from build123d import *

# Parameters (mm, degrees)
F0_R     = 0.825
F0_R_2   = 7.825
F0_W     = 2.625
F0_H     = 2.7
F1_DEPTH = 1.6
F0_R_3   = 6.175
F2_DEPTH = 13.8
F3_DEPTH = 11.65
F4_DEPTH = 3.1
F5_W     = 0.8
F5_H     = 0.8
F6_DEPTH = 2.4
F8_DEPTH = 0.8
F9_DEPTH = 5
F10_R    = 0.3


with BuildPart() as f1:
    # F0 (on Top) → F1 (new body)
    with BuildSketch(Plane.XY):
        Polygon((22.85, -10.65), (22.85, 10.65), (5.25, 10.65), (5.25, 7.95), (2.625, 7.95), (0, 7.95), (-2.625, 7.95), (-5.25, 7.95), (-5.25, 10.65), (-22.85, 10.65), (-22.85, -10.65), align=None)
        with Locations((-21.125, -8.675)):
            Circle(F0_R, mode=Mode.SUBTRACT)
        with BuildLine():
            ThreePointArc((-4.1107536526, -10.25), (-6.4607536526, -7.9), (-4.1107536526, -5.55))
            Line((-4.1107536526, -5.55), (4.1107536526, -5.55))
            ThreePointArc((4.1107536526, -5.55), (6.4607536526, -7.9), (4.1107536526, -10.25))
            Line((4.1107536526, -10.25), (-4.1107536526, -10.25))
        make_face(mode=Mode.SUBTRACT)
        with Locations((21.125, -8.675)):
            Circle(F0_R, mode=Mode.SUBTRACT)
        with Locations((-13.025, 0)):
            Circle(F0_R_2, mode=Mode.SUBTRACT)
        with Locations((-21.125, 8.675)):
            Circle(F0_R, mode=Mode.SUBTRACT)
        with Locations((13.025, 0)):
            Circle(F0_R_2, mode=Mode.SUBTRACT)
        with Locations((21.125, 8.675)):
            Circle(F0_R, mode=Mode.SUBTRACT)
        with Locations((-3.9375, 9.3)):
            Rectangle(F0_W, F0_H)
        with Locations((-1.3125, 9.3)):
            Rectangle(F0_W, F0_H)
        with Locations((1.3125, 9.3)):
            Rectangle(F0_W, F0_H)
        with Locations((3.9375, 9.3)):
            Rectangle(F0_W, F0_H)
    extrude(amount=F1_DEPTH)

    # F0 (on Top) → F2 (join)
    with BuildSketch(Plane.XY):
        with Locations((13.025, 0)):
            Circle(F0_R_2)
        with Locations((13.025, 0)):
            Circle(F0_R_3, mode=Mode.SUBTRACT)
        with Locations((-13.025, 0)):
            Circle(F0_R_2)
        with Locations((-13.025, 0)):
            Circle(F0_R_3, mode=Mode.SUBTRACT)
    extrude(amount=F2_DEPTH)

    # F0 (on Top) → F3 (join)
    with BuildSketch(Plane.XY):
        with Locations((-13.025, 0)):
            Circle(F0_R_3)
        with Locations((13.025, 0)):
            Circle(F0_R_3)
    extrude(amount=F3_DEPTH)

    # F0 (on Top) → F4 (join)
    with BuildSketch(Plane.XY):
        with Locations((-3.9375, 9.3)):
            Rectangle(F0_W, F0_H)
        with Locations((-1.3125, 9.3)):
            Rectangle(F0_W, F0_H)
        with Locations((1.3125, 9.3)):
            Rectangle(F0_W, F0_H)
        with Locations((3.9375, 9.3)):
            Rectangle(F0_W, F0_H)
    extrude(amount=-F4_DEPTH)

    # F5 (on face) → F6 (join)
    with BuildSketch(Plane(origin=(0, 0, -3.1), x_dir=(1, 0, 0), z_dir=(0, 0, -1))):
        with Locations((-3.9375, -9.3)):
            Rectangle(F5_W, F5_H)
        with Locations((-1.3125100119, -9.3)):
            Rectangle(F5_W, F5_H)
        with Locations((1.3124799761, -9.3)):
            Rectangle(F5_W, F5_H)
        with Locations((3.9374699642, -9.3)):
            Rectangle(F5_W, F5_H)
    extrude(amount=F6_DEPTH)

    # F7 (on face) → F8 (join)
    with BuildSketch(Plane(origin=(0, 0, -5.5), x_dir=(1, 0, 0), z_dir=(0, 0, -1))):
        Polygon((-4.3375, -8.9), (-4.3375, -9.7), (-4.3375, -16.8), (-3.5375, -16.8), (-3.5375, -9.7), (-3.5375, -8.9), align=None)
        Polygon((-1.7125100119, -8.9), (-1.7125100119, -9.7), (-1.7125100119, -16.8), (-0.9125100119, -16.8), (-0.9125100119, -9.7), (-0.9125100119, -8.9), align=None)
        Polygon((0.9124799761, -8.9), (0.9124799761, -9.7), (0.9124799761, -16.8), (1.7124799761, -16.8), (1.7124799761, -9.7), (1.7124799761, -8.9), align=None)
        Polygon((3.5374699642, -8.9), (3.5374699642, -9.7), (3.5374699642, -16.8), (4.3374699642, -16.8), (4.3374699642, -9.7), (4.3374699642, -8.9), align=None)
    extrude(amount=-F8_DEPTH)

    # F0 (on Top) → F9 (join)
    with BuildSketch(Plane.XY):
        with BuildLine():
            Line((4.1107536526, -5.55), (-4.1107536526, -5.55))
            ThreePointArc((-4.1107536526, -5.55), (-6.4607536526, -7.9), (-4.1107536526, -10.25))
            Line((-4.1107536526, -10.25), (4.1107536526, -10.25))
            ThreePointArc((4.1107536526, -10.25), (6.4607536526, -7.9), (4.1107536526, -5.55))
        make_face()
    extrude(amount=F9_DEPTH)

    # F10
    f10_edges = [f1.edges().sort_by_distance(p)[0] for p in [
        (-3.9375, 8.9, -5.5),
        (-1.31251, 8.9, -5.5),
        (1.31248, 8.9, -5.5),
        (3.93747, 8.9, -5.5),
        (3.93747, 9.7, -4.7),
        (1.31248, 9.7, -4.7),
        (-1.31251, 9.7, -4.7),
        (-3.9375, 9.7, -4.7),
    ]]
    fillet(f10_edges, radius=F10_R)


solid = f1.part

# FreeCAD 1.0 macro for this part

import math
import FreeCAD as App
import Part
import Sketcher
Q = App.Units.Quantity


def edges_at(feature, points):
    """Names of the edges that pass closest to the given points."""
    edges = feature.Shape.Edges
    near = lambda p: min(range(len(edges)), key=lambda i: edges[i].distToShape(Part.Vertex(*p))[0])
    return sorted({f"Edge{near(p) + 1}" for p in points})


def add_polygon(sketch, points):
    """Adds a closed chain of lines whose ends are joined by coincident constraints."""
    first, n = sketch.GeometryCount, len(points)
    for a, b in zip(points, points[1:] + points[:1]):
        sketch.addGeometry(Part.LineSegment(App.Vector(*a, 0), App.Vector(*b, 0)), False)
    for i in range(n):
        sketch.addConstraint(Sketcher.Constraint("Coincident", first + i, 2, first + (i + 1) % n, 1))

doc = App.newDocument("Part")
body = doc.addObject("PartDesign::Body", "Body")

# Sketch on XY plane
sketch1 = body.newObject("Sketcher::SketchObject", "Sketch")
sketch1.AttachmentSupport = (doc.getObject("XY_Plane"), [""])
sketch1.MapMode = "FlatFace"
add_polygon(sketch1, [(22.9, -10.7), (22.9, 10.7), (-22.9, 10.7), (-22.9, -10.7)])  # lines 0-3
sketch1.addGeometry(Part.Circle(App.Vector(-21.1, -8.7, 0), App.Vector(0, 0, 1), 0.8), False)  # 4
sketch1.addGeometry(Part.LineSegment(App.Vector(4.1, -10.2, 0), App.Vector(-4.1, -10.2, 0)), False)  # 5
sketch1.addGeometry(Part.ArcOfCircle(Part.Circle(App.Vector(-4.1, -7.9, 0), App.Vector(0, 0, 1), 2.4), math.radians(90), math.radians(270)), False)  # 6
sketch1.addGeometry(Part.LineSegment(App.Vector(-4.1, -5.5, 0), App.Vector(4.1, -5.5, 0)), False)  # 7
sketch1.addGeometry(Part.ArcOfCircle(Part.Circle(App.Vector(4.1, -7.9, 0), App.Vector(0, 0, 1), 2.4), math.radians(-90), math.radians(90)), False)  # 8
sketch1.addGeometry(Part.Circle(App.Vector(21.1, -8.7, 0), App.Vector(0, 0, 1), 0.8), False)  # 9
sketch1.addGeometry(Part.Circle(App.Vector(-13, 0, 0), App.Vector(0, 0, 1), 7.8), False)  # 10
sketch1.addGeometry(Part.Circle(App.Vector(-21.1, 8.7, 0), App.Vector(0, 0, 1), 0.8), False)  # 11
sketch1.addGeometry(Part.Circle(App.Vector(13, 0, 0), App.Vector(0, 0, 1), 7.8), False)  # 12
sketch1.addGeometry(Part.Circle(App.Vector(21.1, 8.7, 0), App.Vector(0, 0, 1), 0.8), False)  # 13
sketch1.addConstraint(Sketcher.Constraint("Tangent", 5, 2, 6, 2))
sketch1.addConstraint(Sketcher.Constraint("Tangent", 6, 1, 7, 1))
sketch1.addConstraint(Sketcher.Constraint("Tangent", 7, 2, 8, 2))
sketch1.addConstraint(Sketcher.Constraint("Tangent", 8, 1, 5, 1))
sketch1.addConstraint(Sketcher.Constraint("Vertical", 0))
sketch1.addConstraint(Sketcher.Constraint("Horizontal", 1))
sketch1.addConstraint(Sketcher.Constraint("Vertical", 2))
sketch1.addConstraint(Sketcher.Constraint("Horizontal", 3))
sketch1.addConstraint(Sketcher.Constraint("Horizontal", 5))
sketch1.addConstraint(Sketcher.Constraint("Horizontal", 7))
sketch1.addConstraint(Sketcher.Constraint("Equal", 4, 9))
sketch1.addConstraint(Sketcher.Constraint("Equal", 9, 11))
sketch1.addConstraint(Sketcher.Constraint("Equal", 10, 12))
sketch1.addConstraint(Sketcher.Constraint("Equal", 11, 13))
sketch1.addConstraint(Sketcher.Constraint("Symmetric", 9, 3, 11, 3, -1, 1))
sketch1.addConstraint(Sketcher.Constraint("Symmetric", 10, 3, 12, 3, -1, 1))
sketch1.addConstraint(Sketcher.Constraint("Symmetric", 4, 3, 13, 3, -1, 1))
sketch1.addConstraint(Sketcher.Constraint("Symmetric", 0, 2, 2, 2, -1, 1))
sketch1.addConstraint(Sketcher.Constraint("Symmetric", 4, 3, 9, 3, -2))
sketch1.addConstraint(Sketcher.Constraint("PointOnObject", 10, 3, -1))
sketch1.addConstraint(Sketcher.Constraint("Diameter", 4, Q("1.65 mm")))
sketch1.addConstraint(Sketcher.Constraint("Diameter", 10, Q("15.65 mm")))
sketch1.addConstraint(Sketcher.Constraint("Radius", 6, Q("2.35 mm")))
sketch1.addConstraint(Sketcher.Constraint("DistanceX", 1, 2, 1, 1, Q("45.7 mm")))
sketch1.addConstraint(Sketcher.Constraint("DistanceY", 0, 1, 0, 2, Q("21.3 mm")))
sketch1.addConstraint(Sketcher.Constraint("DistanceY", 6, 3, -1, 1, Q("7.9 mm")))
sketch1.addConstraint(Sketcher.Constraint("DistanceX", 4, 3, 10, 3, Q("8.1 mm")))
sketch1.addConstraint(Sketcher.Constraint("DistanceX", 4, 3, 9, 3, Q("42.25 mm")))
sketch1.addConstraint(Sketcher.Constraint("DistanceY", 4, 3, 11, 3, Q("17.35 mm")))
sketch1.addConstraint(Sketcher.Constraint("DistanceX", 5, 2, 5, 1, Q("8.221507 mm")))
sketch1.addConstraint(Sketcher.Constraint("DistanceX", 6, 3, -1, 1, Q("4.110754 mm")))
pad1 = body.newObject("PartDesign::Pad", "Pad")
pad1.Profile = sketch1
pad1.Length = 1.6

# Sketch on XY plane
sketch2 = body.newObject("Sketcher::SketchObject", "Sketch001")
sketch2.AttachmentSupport = (doc.getObject("XY_Plane"), [""])
sketch2.MapMode = "FlatFace"
sketch2.addGeometry(Part.Circle(App.Vector(13, 0, 0), App.Vector(0, 0, 1), 8), False)
sketch2.addGeometry(Part.Circle(App.Vector(13, 0, 0), App.Vector(0, 0, 1), 6), False)
sketch2.addGeometry(Part.Circle(App.Vector(-13, 0, 0), App.Vector(0, 0, 1), 8), False)
sketch2.addGeometry(Part.Circle(App.Vector(-13, 0, 0), App.Vector(0, 0, 1), 6), False)
sketch2.addConstraint(Sketcher.Constraint("Coincident", 1, 3, 0, 3))
sketch2.addConstraint(Sketcher.Constraint("Coincident", 3, 3, 2, 3))
sketch2.addConstraint(Sketcher.Constraint("Equal", 0, 2))
sketch2.addConstraint(Sketcher.Constraint("Equal", 1, 3))
sketch2.addConstraint(Sketcher.Constraint("Symmetric", 0, 3, 2, 3, -1, 1))
sketch2.addConstraint(Sketcher.Constraint("PointOnObject", 0, 3, -1))
sketch2.addConstraint(Sketcher.Constraint("Diameter", 0, Q("15.65 mm")))
sketch2.addConstraint(Sketcher.Constraint("Diameter", 1, Q("12.35 mm")))
sketch2.addConstraint(Sketcher.Constraint("DistanceX", 2, 3, 0, 3, Q("26.05 mm")))
pad2 = body.newObject("PartDesign::Pad", "Pad001")
pad2.Profile = sketch2
pad2.Length = 13.8

# Sketch on XY plane
sketch3 = body.newObject("Sketcher::SketchObject", "Sketch002")
sketch3.AttachmentSupport = (doc.getObject("XY_Plane"), [""])
sketch3.MapMode = "FlatFace"
sketch3.addGeometry(Part.Circle(App.Vector(-13, 0, 0), App.Vector(0, 0, 1), 6), False)
sketch3.addGeometry(Part.Circle(App.Vector(13, 0, 0), App.Vector(0, 0, 1), 6), False)
sketch3.addConstraint(Sketcher.Constraint("Equal", 0, 1))
sketch3.addConstraint(Sketcher.Constraint("Symmetric", 0, 3, 1, 3, -1, 1))
sketch3.addConstraint(Sketcher.Constraint("PointOnObject", 0, 3, -1))
sketch3.addConstraint(Sketcher.Constraint("Diameter", 0, Q("12.35 mm")))
sketch3.addConstraint(Sketcher.Constraint("DistanceX", 0, 3, 1, 3, Q("26.05 mm")))
pad3 = body.newObject("PartDesign::Pad", "Pad002")
pad3.Profile = sketch3
pad3.Length = 11.65

# Sketch on XY plane
sketch4 = body.newObject("Sketcher::SketchObject", "Sketch003")
sketch4.AttachmentSupport = (doc.getObject("XY_Plane"), [""])
sketch4.MapMode = "FlatFace"
add_polygon(sketch4, [(-5.2, 10.7), (-5.2, 8), (5.2, 8), (5.2, 10.7)])  # lines 0-3
sketch4.addConstraint(Sketcher.Constraint("Vertical", 0))
sketch4.addConstraint(Sketcher.Constraint("Horizontal", 1))
sketch4.addConstraint(Sketcher.Constraint("Vertical", 2))
sketch4.addConstraint(Sketcher.Constraint("Horizontal", 3))
sketch4.addConstraint(Sketcher.Constraint("DistanceX", 1, 1, 1, 2, Q("10.5 mm")))
sketch4.addConstraint(Sketcher.Constraint("DistanceY", 0, 2, 0, 1, Q("2.7 mm")))
sketch4.addConstraint(Sketcher.Constraint("DistanceX", 0, 2, -1, 1, Q("5.25 mm")))
sketch4.addConstraint(Sketcher.Constraint("DistanceY", -1, 1, 0, 2, Q("7.95 mm")))
pad4 = body.newObject("PartDesign::Pad", "Pad003")
pad4.Profile = sketch4
pad4.Length = 3.1
pad4.Reversed = True

# Sketch on XY plane
sketch5 = body.newObject("Sketcher::SketchObject", "Sketch004")
sketch5.AttachmentSupport = (doc.getObject("XY_Plane"), [""])
sketch5.MapMode = "FlatFace"
sketch5.AttachmentOffset = App.Placement(App.Vector(0, 0, -3.1), App.Rotation())
add_polygon(sketch5, [(-4.3, 8.9), (-4.3, 9.7), (-3.5, 9.7), (-3.5, 8.9)])  # lines 0-3
add_polygon(sketch5, [(-1.7, 8.9), (-1.7, 9.7), (-0.9, 9.7), (-0.9, 8.9)])  # lines 4-7
add_polygon(sketch5, [(0.9, 8.9), (0.9, 9.7), (1.7, 9.7), (1.7, 8.9)])  # lines 8-11
add_polygon(sketch5, [(3.5, 8.9), (3.5, 9.7), (4.3, 9.7), (4.3, 8.9)])  # lines 12-15
sketch5.addConstraint(Sketcher.Constraint("Vertical", 0))
sketch5.addConstraint(Sketcher.Constraint("Horizontal", 1))
sketch5.addConstraint(Sketcher.Constraint("Vertical", 2))
sketch5.addConstraint(Sketcher.Constraint("Horizontal", 3))
sketch5.addConstraint(Sketcher.Constraint("Vertical", 4))
sketch5.addConstraint(Sketcher.Constraint("Horizontal", 5))
sketch5.addConstraint(Sketcher.Constraint("Vertical", 6))
sketch5.addConstraint(Sketcher.Constraint("Horizontal", 7))
sketch5.addConstraint(Sketcher.Constraint("Vertical", 8))
sketch5.addConstraint(Sketcher.Constraint("Horizontal", 9))
sketch5.addConstraint(Sketcher.Constraint("Vertical", 10))
sketch5.addConstraint(Sketcher.Constraint("Horizontal", 11))
sketch5.addConstraint(Sketcher.Constraint("Vertical", 12))
sketch5.addConstraint(Sketcher.Constraint("Horizontal", 13))
sketch5.addConstraint(Sketcher.Constraint("Vertical", 14))
sketch5.addConstraint(Sketcher.Constraint("Horizontal", 15))
sketch5.addConstraint(Sketcher.Constraint("Horizontal", 1, 2, 4, 2))
sketch5.addConstraint(Sketcher.Constraint("Horizontal", 3, 2, 6, 2))
sketch5.addConstraint(Sketcher.Constraint("Horizontal", 5, 2, 8, 2))
sketch5.addConstraint(Sketcher.Constraint("Horizontal", 7, 2, 10, 2))
sketch5.addConstraint(Sketcher.Constraint("Horizontal", 9, 2, 12, 2))
sketch5.addConstraint(Sketcher.Constraint("Horizontal", 11, 2, 14, 2))
sketch5.addConstraint(Sketcher.Constraint("Equal", 3, 5))
sketch5.addConstraint(Sketcher.Constraint("Equal", 7, 9))
sketch5.addConstraint(Sketcher.Constraint("Equal", 11, 13))
sketch5.addConstraint(Sketcher.Constraint("Equal", 15, 0))
sketch5.addConstraint(Sketcher.Constraint("DistanceX", 1, 1, 1, 2, Q("0.8 mm")))
sketch5.addConstraint(Sketcher.Constraint("DistanceY", -1, 1, 0, 2, Q("9.7 mm")))
sketch5.addConstraint(Sketcher.Constraint("DistanceX", 0, 2, -1, 1, Q("4.3375 mm")))
sketch5.addConstraint(Sketcher.Constraint("DistanceX", 4, 2, -1, 1, Q("1.71251 mm")))
sketch5.addConstraint(Sketcher.Constraint("DistanceX", -1, 1, 8, 2, Q("0.91248 mm")))
sketch5.addConstraint(Sketcher.Constraint("DistanceX", -1, 1, 12, 2, Q("3.53747 mm")))
pad5 = body.newObject("PartDesign::Pad", "Pad004")
pad5.Profile = sketch5
pad5.Length = 2.4
pad5.Reversed = True

# Sketch on XY plane
sketch6 = body.newObject("Sketcher::SketchObject", "Sketch005")
sketch6.AttachmentSupport = (doc.getObject("XY_Plane"), [""])
sketch6.MapMode = "FlatFace"
sketch6.AttachmentOffset = App.Placement(App.Vector(0, 0, -5.5), App.Rotation())
add_polygon(sketch6, [(-4.3, 8.9), (-4.3, 16.8), (-3.5, 16.8), (-3.5, 8.9)])  # lines 0-3
add_polygon(sketch6, [(-1.7, 8.9), (-1.7, 16.8), (-0.9, 16.8), (-0.9, 8.9)])  # lines 4-7
add_polygon(sketch6, [(0.9, 8.9), (0.9, 16.8), (1.7, 16.8), (1.7, 8.9)])  # lines 8-11
add_polygon(sketch6, [(3.5, 8.9), (3.5, 16.8), (4.3, 16.8), (4.3, 8.9)])  # lines 12-15
sketch6.addConstraint(Sketcher.Constraint("Vertical", 0))
sketch6.addConstraint(Sketcher.Constraint("Horizontal", 1))
sketch6.addConstraint(Sketcher.Constraint("Vertical", 2))
sketch6.addConstraint(Sketcher.Constraint("Horizontal", 3))
sketch6.addConstraint(Sketcher.Constraint("Vertical", 4))
sketch6.addConstraint(Sketcher.Constraint("Horizontal", 5))
sketch6.addConstraint(Sketcher.Constraint("Vertical", 6))
sketch6.addConstraint(Sketcher.Constraint("Horizontal", 7))
sketch6.addConstraint(Sketcher.Constraint("Vertical", 8))
sketch6.addConstraint(Sketcher.Constraint("Horizontal", 9))
sketch6.addConstraint(Sketcher.Constraint("Vertical", 10))
sketch6.addConstraint(Sketcher.Constraint("Horizontal", 11))
sketch6.addConstraint(Sketcher.Constraint("Vertical", 12))
sketch6.addConstraint(Sketcher.Constraint("Horizontal", 13))
sketch6.addConstraint(Sketcher.Constraint("Vertical", 14))
sketch6.addConstraint(Sketcher.Constraint("Horizontal", 15))
sketch6.addConstraint(Sketcher.Constraint("Horizontal", 1, 2, 4, 2))
sketch6.addConstraint(Sketcher.Constraint("Horizontal", 3, 2, 6, 2))
sketch6.addConstraint(Sketcher.Constraint("Horizontal", 5, 2, 8, 2))
sketch6.addConstraint(Sketcher.Constraint("Horizontal", 7, 2, 10, 2))
sketch6.addConstraint(Sketcher.Constraint("Horizontal", 9, 2, 12, 2))
sketch6.addConstraint(Sketcher.Constraint("Horizontal", 11, 2, 14, 2))
sketch6.addConstraint(Sketcher.Constraint("Equal", 3, 5))
sketch6.addConstraint(Sketcher.Constraint("Equal", 7, 9))
sketch6.addConstraint(Sketcher.Constraint("Equal", 11, 13))
sketch6.addConstraint(Sketcher.Constraint("DistanceX", 1, 1, 1, 2, Q("0.8 mm")))
sketch6.addConstraint(Sketcher.Constraint("DistanceY", 0, 1, 0, 2, Q("7.9 mm")))
sketch6.addConstraint(Sketcher.Constraint("DistanceY", -1, 1, 0, 2, Q("16.8 mm")))
sketch6.addConstraint(Sketcher.Constraint("DistanceX", 0, 2, -1, 1, Q("4.3375 mm")))
sketch6.addConstraint(Sketcher.Constraint("DistanceX", 4, 2, -1, 1, Q("1.71251 mm")))
sketch6.addConstraint(Sketcher.Constraint("DistanceX", -1, 1, 8, 2, Q("0.91248 mm")))
sketch6.addConstraint(Sketcher.Constraint("DistanceX", -1, 1, 12, 2, Q("3.53747 mm")))
pad6 = body.newObject("PartDesign::Pad", "Pad005")
pad6.Profile = sketch6
pad6.Length = 0.8

# Sketch on XY plane
sketch7 = body.newObject("Sketcher::SketchObject", "Sketch006")
sketch7.AttachmentSupport = (doc.getObject("XY_Plane"), [""])
sketch7.MapMode = "FlatFace"
sketch7.addGeometry(Part.LineSegment(App.Vector(4.1, -5.5, 0), App.Vector(-4.1, -5.5, 0)), False)
sketch7.addGeometry(Part.ArcOfCircle(Part.Circle(App.Vector(-4.1, -7.9, 0), App.Vector(0, 0, 1), 2.4), math.radians(90), math.radians(270)), False)
sketch7.addGeometry(Part.LineSegment(App.Vector(-4.1, -10.2, 0), App.Vector(4.1, -10.2, 0)), False)
sketch7.addGeometry(Part.ArcOfCircle(Part.Circle(App.Vector(4.1, -7.9, 0), App.Vector(0, 0, 1), 2.4), math.radians(-90), math.radians(90)), False)
sketch7.addConstraint(Sketcher.Constraint("Tangent", 0, 2, 1, 1))
sketch7.addConstraint(Sketcher.Constraint("Tangent", 1, 2, 2, 1))
sketch7.addConstraint(Sketcher.Constraint("Tangent", 2, 2, 3, 1))
sketch7.addConstraint(Sketcher.Constraint("Tangent", 3, 2, 0, 1))
sketch7.addConstraint(Sketcher.Constraint("Horizontal", 0))
sketch7.addConstraint(Sketcher.Constraint("Horizontal", 2))
sketch7.addConstraint(Sketcher.Constraint("Radius", 1, Q("2.35 mm")))
sketch7.addConstraint(Sketcher.Constraint("DistanceY", 1, 3, -1, 1, Q("7.9 mm")))
sketch7.addConstraint(Sketcher.Constraint("DistanceX", 0, 2, 0, 1, Q("8.221507 mm")))
sketch7.addConstraint(Sketcher.Constraint("DistanceX", 1, 3, -1, 1, Q("4.110754 mm")))
pad7 = body.newObject("PartDesign::Pad", "Pad006")
pad7.Profile = sketch7
pad7.Length = 5
doc.recompute()

fillet = body.newObject("PartDesign::Fillet", "Fillet")
fillet.Base = (pad7, edges_at(pad7, [
    (-3.938, 8.9, -5.5),
    (-1.313, 8.9, -5.5),
    (1.312, 8.9, -5.5),
    (3.937, 8.9, -5.5),
    (3.937, 9.7, -4.7),
    (1.312, 9.7, -4.7),
    (-1.313, 9.7, -4.7),
    (-3.938, 9.7, -4.7),
]))
fillet.Radius = 0.3

doc.recompute()
